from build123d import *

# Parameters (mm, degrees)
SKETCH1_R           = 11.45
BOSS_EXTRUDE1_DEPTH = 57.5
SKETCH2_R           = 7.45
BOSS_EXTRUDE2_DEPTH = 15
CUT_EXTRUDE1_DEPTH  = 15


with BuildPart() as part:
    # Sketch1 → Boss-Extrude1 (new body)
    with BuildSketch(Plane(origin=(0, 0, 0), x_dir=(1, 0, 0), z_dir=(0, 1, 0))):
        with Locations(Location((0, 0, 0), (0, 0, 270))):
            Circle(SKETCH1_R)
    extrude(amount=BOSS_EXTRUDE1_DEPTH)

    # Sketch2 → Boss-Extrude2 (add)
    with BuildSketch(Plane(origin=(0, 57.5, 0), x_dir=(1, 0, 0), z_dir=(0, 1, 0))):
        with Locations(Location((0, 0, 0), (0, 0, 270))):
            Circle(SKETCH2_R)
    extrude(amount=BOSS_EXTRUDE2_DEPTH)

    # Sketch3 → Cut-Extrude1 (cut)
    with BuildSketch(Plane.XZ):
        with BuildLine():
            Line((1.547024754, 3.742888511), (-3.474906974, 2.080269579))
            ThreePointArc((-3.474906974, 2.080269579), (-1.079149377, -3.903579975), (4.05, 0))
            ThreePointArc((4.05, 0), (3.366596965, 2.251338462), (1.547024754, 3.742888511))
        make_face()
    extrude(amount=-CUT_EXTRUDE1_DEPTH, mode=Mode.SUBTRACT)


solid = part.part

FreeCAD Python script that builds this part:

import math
import FreeCAD as App
import Part
import Sketcher
from FreeCAD import Vector

doc = App.newDocument("Part")
body = doc.addObject("PartDesign::Body", "Body")

# Sketch on XZ plane
sketch1 = body.newObject("Sketcher::SketchObject", "Sketch")
sketch1.AttachmentSupport = (doc.getObject("XZ_Plane"), [""])
sketch1.MapMode = "FlatFace"
sketch1.addGeometry(Part.Circle(Vector(0, 0, 0), Vector(0, 0, 1), 11.45), False)
sketch1.addConstraint([
    Sketcher.Constraint("Coincident", 0, 3, -1, 1),
    Sketcher.Constraint("Diameter", 0, 22.9),
])
pad1 = body.newObject("PartDesign::Pad", "Pad")
pad1.Profile = sketch1
pad1.Length = 57.5
pad1.Reversed = True

# Sketch on XZ plane
sketch2 = body.newObject("Sketcher::SketchObject", "Sketch001")
sketch2.AttachmentSupport = (doc.getObject("XZ_Plane"), [""])
sketch2.MapMode = "FlatFace"
sketch2.AttachmentOffset = App.Placement(Vector(0, 0, -57.5), App.Rotation())
sketch2.addGeometry(Part.Circle(Vector(0, 0, 0), Vector(0, 0, 1), 7.45), False)
sketch2.addConstraint([
    Sketcher.Constraint("Coincident", 0, 3, -1, 1),
    Sketcher.Constraint("Diameter", 0, 14.9),
])
pad2 = body.newObject("PartDesign::Pad", "Pad001")
pad2.Profile = sketch2
pad2.Length = 15
pad2.Reversed = True

# Sketch on XZ plane
sketch3 = body.newObject("Sketcher::SketchObject", "Sketch002")
sketch3.AttachmentSupport = (doc.getObject("XZ_Plane"), [""])
sketch3.MapMode = "FlatFace"
sketch3.addGeometry([
    Part.LineSegment(Vector(1.547025, 3.742889, 0), Vector(-3.474907, 2.08027, 0)),
    Part.ArcOfCircle(Part.Circle(Vector(0, 0, 0), Vector(0, 0, 1), 4.05), math.radians(149.092951), math.radians(360)),
    Part.ArcOfCircle(Part.Circle(Vector(0, 0, 0), Vector(0, 0, 1), 4.05), math.radians(0), math.radians(67.543529)),
], False)
sketch3.addConstraint([
    Sketcher.Constraint("Coincident", 0, 2, 1, 1),
    Sketcher.Constraint("Tangent", 1, 2, 2, 1),
    Sketcher.Constraint("Coincident", 2, 2, 0, 1),
    Sketcher.Constraint("Coincident", 1, 3, -1, 1),
    Sketcher.Constraint("Equal", 1, 2),
    Sketcher.Constraint("PointOnObject", 1, 2, -1),
    Sketcher.Constraint("Radius", 1, 4.05),
    Sketcher.Constraint("Distance", 0, 5.29),
    Sketcher.Constraint("DistanceY", -1, 1, 0, 2, 2.08027),
])
pocket1 = body.newObject("PartDesign::Pocket", "Pocket")
pocket1.Profile = sketch3
pocket1.Length = 15

doc.recompute()
